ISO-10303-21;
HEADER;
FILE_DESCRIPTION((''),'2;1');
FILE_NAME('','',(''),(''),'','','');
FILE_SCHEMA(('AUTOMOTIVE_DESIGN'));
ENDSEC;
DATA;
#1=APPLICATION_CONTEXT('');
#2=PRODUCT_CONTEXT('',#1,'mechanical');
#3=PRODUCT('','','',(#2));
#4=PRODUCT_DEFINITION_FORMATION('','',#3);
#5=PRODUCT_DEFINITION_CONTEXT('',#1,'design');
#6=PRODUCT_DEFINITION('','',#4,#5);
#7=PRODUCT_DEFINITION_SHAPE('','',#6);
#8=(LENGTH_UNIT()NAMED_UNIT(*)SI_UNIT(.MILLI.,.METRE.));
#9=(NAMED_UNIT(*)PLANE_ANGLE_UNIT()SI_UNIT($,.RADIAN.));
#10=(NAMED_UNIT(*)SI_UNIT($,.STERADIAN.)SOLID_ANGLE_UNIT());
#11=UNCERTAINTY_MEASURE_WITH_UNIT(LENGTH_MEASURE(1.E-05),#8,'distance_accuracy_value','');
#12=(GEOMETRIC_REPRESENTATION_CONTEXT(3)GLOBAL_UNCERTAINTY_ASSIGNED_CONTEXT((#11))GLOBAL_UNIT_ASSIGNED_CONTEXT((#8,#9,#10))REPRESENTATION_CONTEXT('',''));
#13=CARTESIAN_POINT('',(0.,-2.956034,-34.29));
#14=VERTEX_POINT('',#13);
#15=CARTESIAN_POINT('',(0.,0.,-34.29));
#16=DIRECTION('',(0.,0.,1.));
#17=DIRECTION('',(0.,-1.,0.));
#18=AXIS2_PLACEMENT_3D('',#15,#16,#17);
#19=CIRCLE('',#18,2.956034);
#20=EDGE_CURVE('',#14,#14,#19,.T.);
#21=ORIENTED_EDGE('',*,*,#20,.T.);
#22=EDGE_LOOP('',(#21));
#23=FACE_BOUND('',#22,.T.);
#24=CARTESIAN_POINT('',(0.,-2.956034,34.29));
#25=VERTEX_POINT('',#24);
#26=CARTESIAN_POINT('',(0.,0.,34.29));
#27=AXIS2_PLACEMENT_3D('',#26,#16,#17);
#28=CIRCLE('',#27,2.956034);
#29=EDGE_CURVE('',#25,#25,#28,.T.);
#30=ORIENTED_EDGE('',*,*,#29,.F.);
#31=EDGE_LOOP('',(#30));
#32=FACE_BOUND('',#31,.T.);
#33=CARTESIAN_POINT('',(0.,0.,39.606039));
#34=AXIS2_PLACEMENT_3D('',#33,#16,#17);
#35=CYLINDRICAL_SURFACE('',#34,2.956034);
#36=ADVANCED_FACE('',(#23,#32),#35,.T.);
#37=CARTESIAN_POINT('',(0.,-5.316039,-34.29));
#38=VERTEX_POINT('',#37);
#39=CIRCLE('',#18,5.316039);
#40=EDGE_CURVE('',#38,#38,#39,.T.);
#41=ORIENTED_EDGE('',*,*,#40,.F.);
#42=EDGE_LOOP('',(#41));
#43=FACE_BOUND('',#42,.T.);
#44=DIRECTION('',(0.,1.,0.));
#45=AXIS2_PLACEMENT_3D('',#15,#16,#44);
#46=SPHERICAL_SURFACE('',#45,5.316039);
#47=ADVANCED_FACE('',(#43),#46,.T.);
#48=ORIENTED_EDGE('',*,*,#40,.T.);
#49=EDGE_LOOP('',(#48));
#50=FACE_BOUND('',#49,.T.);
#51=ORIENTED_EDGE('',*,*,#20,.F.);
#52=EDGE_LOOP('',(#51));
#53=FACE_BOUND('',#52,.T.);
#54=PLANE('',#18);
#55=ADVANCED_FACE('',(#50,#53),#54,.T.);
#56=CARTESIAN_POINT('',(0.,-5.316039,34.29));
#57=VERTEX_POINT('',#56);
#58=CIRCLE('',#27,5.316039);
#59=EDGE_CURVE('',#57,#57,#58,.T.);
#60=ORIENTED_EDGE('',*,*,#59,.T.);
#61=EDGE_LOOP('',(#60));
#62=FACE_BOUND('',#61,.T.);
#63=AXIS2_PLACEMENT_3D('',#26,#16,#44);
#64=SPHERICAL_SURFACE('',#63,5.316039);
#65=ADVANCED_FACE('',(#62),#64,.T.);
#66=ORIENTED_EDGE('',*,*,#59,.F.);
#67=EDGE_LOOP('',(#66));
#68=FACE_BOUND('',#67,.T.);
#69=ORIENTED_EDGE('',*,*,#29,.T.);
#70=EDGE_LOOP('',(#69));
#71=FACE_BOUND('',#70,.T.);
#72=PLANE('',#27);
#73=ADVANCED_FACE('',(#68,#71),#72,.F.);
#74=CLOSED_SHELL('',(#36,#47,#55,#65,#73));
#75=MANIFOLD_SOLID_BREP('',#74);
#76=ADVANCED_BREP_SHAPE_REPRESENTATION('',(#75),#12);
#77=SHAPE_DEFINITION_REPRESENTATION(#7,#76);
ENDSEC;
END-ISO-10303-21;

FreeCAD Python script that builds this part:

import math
import FreeCAD as App
import Part
import Sketcher
from FreeCAD import Vector
Q = App.Units.Quantity

doc = App.newDocument("Part")
body = doc.addObject("PartDesign::Body", "Body")

sketch1 = body.newObject("Sketcher::SketchObject", "Sketch")
sketch1.AttachmentSupport = (doc.getObject("YZ_Plane"), [""])
sketch1.MapMode = "FlatFace"
sketch1.addGeometry(Part.LineSegment(Vector(0, 34.29, 0), Vector(0, -39.606039, 0)), False)
sketch1.addGeometry(Part.ArcOfCircle(Part.Circle(Vector(0, -34.29, 0), Vector(0, 0, 1), 5.316039), math.radians(-90), math.radians(0)), False)
sketch1.addGeometry(Part.LineSegment(Vector(5.316039, -34.29, 0), Vector(2.956034, -34.29, 0)), False)
sketch1.addGeometry(Part.LineSegment(Vector(2.956034, -34.29, 0), Vector(2.956034, 34.29, 0)), False)
sketch1.addGeometry(Part.LineSegment(Vector(2.956034, 34.29, 0), Vector(5.316039, 34.29, 0)), False)
sketch1.addGeometry(Part.ArcOfCircle(Part.Circle(Vector(0, 34.29, 0), Vector(0, 0, 1), 5.316039), math.radians(0), math.radians(90)), False)
sketch1.addGeometry(Part.LineSegment(Vector(0, 39.606039, 0), Vector(0, 34.29, 0)), False)
sketch1.addConstraint(Sketcher.Constraint("Coincident", 0, 2, 1, 1))
sketch1.addConstraint(Sketcher.Constraint("Coincident", 1, 2, 2, 1))
sketch1.addConstraint(Sketcher.Constraint("Coincident", 2, 2, 3, 1))
sketch1.addConstraint(Sketcher.Constraint("Coincident", 3, 2, 4, 1))
sketch1.addConstraint(Sketcher.Constraint("Coincident", 4, 2, 5, 1))
sketch1.addConstraint(Sketcher.Constraint("Coincident", 5, 2, 6, 1))
sketch1.addConstraint(Sketcher.Constraint("Coincident", 6, 2, 0, 1))
sketch1.addConstraint(Sketcher.Constraint("Vertical", 0))
sketch1.addConstraint(Sketcher.Constraint("Horizontal", 2))
sketch1.addConstraint(Sketcher.Constraint("Vertical", 3))
sketch1.addConstraint(Sketcher.Constraint("Horizontal", 4))
sketch1.addConstraint(Sketcher.Constraint("Vertical", 6))
sketch1.addConstraint(Sketcher.Constraint("Coincident", 6, 2, 5, 3))
sketch1.addConstraint(Sketcher.Constraint("Equal", 1, 5))
sketch1.addConstraint(Sketcher.Constraint("Symmetric", 1, 3, 5, 3, -1, 1))
sketch1.addConstraint(Sketcher.Constraint("Symmetric", 1, 2, 4, 2, -1))
sketch1.addConstraint(Sketcher.Constraint("Horizontal", 5, 3, 3, 2))
sketch1.addConstraint(Sketcher.Constraint("DistanceY", 3, 1, 3, 2, Q("2.7 in")))
sketch1.addConstraint(Sketcher.Constraint("Radius", 1, Q("5.316039 mm")))
sketch1.addConstraint(Sketcher.Constraint("DistanceX", 2, 2, 2, 1, Q("2.360005 mm")))
revolution = body.newObject("PartDesign::Revolution", "Revolution")
revolution.Profile = sketch1
revolution.ReferenceAxis = (sketch1, ["V_Axis"])
revolution.Angle = 360

doc.recompute()
